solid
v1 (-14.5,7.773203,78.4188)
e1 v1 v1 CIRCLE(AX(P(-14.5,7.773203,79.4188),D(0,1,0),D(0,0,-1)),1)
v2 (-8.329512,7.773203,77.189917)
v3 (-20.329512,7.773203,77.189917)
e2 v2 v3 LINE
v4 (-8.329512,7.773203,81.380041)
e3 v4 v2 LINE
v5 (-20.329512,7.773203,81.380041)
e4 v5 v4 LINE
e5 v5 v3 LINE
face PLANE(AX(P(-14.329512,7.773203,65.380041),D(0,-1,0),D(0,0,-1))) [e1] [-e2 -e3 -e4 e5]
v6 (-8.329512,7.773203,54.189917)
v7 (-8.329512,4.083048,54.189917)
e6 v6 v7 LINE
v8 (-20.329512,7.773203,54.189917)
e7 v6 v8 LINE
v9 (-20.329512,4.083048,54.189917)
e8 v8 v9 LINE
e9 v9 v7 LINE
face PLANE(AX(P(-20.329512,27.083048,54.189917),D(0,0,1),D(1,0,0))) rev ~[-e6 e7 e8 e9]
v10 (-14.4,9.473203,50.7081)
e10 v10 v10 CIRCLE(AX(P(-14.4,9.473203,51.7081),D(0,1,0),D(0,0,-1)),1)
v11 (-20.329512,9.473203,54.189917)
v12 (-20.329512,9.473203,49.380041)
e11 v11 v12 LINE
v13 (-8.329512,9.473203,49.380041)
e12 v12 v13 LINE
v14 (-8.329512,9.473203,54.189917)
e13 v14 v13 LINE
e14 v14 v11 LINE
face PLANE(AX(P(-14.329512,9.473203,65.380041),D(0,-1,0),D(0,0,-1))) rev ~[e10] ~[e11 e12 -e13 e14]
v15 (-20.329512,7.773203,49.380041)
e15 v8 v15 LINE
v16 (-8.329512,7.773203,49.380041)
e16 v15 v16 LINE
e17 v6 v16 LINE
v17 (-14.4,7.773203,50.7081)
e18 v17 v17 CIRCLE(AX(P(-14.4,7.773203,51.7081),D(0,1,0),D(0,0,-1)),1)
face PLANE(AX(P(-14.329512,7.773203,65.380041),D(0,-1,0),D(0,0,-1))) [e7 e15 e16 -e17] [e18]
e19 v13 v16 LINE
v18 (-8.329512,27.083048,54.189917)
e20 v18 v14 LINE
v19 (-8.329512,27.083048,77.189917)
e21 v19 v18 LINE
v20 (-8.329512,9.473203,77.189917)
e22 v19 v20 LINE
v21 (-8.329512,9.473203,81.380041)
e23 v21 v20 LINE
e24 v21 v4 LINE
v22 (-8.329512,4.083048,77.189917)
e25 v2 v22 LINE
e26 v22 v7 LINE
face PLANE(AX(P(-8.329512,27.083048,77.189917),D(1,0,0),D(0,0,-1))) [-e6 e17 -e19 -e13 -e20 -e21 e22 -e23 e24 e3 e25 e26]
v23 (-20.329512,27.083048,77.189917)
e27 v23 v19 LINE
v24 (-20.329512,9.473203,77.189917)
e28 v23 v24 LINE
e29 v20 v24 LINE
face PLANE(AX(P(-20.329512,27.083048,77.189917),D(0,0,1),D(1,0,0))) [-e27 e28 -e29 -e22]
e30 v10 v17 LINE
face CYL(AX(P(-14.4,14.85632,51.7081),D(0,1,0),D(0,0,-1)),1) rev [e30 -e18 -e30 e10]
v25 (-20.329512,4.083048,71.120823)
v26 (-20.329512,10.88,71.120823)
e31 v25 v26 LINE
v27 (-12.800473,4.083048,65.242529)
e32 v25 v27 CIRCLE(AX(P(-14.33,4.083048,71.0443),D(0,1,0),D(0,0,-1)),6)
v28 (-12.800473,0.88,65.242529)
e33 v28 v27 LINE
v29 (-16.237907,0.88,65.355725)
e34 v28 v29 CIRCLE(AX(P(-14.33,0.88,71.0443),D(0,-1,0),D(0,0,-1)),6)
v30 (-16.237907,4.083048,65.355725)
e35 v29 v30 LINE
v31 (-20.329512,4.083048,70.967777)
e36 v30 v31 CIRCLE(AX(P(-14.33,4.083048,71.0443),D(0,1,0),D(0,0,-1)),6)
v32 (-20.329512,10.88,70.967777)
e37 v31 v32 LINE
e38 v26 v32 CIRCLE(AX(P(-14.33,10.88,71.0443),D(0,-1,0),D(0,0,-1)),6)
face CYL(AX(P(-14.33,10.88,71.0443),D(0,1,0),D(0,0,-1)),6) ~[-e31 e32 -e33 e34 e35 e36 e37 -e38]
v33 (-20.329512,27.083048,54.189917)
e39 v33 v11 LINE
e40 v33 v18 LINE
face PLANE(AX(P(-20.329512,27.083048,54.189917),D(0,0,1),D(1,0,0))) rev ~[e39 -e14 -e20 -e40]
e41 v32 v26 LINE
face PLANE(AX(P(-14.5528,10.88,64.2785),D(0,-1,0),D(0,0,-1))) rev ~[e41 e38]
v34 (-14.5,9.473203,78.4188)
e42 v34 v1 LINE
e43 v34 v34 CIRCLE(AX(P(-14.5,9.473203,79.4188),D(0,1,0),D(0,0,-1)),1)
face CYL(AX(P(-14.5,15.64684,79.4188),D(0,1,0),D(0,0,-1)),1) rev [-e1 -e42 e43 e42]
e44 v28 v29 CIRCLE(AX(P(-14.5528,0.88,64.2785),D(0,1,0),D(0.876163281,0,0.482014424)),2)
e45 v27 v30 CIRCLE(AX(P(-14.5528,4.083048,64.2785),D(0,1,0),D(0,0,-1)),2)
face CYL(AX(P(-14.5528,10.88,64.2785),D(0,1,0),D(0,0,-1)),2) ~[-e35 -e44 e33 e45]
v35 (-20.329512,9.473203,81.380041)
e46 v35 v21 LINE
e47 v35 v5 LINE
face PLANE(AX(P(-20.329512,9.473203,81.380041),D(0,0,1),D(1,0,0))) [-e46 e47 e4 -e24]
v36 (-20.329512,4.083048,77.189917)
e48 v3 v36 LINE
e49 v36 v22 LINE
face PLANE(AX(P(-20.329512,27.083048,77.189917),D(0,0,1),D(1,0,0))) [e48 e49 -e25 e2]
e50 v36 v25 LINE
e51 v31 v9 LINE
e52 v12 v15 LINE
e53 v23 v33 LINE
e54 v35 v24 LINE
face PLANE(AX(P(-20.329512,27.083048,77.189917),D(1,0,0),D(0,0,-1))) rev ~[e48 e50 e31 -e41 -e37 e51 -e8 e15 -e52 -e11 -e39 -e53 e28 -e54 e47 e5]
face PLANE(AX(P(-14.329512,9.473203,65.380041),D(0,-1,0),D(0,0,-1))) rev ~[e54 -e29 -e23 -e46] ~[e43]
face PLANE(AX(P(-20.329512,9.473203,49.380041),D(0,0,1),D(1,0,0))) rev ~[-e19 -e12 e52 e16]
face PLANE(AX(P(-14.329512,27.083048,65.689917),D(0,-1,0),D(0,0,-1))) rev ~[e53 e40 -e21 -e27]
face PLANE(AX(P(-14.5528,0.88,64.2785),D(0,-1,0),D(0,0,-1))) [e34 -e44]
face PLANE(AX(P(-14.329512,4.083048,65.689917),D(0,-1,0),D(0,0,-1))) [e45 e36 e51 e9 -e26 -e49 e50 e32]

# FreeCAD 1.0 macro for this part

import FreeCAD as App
import Part
import Sketcher

doc = App.newDocument("Part")
body = doc.addObject("PartDesign::Body", "Body")

sketch1 = doc.addObject("Sketcher::SketchObject", "Sketch")
body.addObject(sketch1)
sketch1.AttachmentSupport = (doc.XY_Plane, [""])
sketch1.MapMode = "FlatFace"
sketch1.AttachmentOffset = App.Placement(App.Vector(0, 0, 6.56), App.Rotation())
sketch1.addGeometry(Part.Circle(App.Vector(34.4857, 34.67, 0), App.Vector(0, 0, 1), 6), False)
sketch1.addConstraint(Sketcher.Constraint("Diameter", 0, 12.0))
sketch1.addConstraint(Sketcher.Constraint("DistanceY", -1, 1, 0, 3, 34.67))
sketch1.addConstraint(Sketcher.Constraint("DistanceX", -1, 1, 0, 3, 34.4857))
pad1 = doc.addObject("PartDesign::Pad", "Pad")
body.addObject(pad1)
pad1.Profile = sketch1
pad1.Length = 10
body2 = doc.addObject("PartDesign::Body", "Body001")

sketch2 = doc.addObject("Sketcher::SketchObject", "Sketch001")
body2.addObject(sketch2)
sketch2.AttachmentSupport = (doc.getObject("XY_Plane001"), [""])
sketch2.MapMode = "FlatFace"
sketch2.AttachmentOffset = App.Placement(App.Vector(0, 0, 2.58368), App.Rotation())
sketch2.addGeometry(Part.Circle(App.Vector(53.8219, 34.6, 0), App.Vector(0, 0, 1), 1), False)
sketch2.addConstraint(Sketcher.Constraint("Diameter", 0, 2.0))
sketch2.addConstraint(Sketcher.Constraint("DistanceY", -1, 1, 0, 3, 34.6))
sketch2.addConstraint(Sketcher.Constraint("DistanceX", -1, 1, 0, 3, 53.8219))
pad2 = doc.addObject("PartDesign::Pad", "Pad001")
body2.addObject(pad2)
pad2.Profile = sketch2
pad2.Length = 10
body3 = doc.addObject("PartDesign::Body", "Body002")

sketch3 = doc.addObject("Sketcher::SketchObject", "Sketch002")
body3.addObject(sketch3)
sketch3.AttachmentSupport = (doc.getObject("XY_Plane002"), [""])
sketch3.MapMode = "FlatFace"
sketch3.AttachmentOffset = App.Placement(App.Vector(0, 0, 1.79316), App.Rotation())
sketch3.addGeometry(Part.Circle(App.Vector(26.1112, 34.5, 0), App.Vector(0, 0, 1), 1), False)
sketch3.addConstraint(Sketcher.Constraint("Diameter", 0, 2.0))
sketch3.addConstraint(Sketcher.Constraint("DistanceY", -1, 1, 0, 3, 34.5))
sketch3.addConstraint(Sketcher.Constraint("DistanceX", -1, 1, 0, 3, 26.1112))
pad3 = doc.addObject("PartDesign::Pad", "Pad002")
body3.addObject(pad3)
pad3.Profile = sketch3
pad3.Length = 10
body4 = doc.addObject("PartDesign::Body", "Body003")

sketch4 = doc.addObject("Sketcher::SketchObject", "Sketch003")
body4.addObject(sketch4)
sketch4.AttachmentSupport = (doc.getObject("XY_Plane003"), [""])
sketch4.MapMode = "FlatFace"
sketch4.AttachmentOffset = App.Placement(App.Vector(0, 0, -9.643048), App.Rotation())
sketch4.addGeometry(Part.LineSegment(App.Vector(28.340083, 40.670488, 0), App.Vector(28.340083, 28.670488, 0)), False)
sketch4.addGeometry(Part.LineSegment(App.Vector(28.340083, 28.670488, 0), App.Vector(51.340083, 28.670488, 0)), False)
sketch4.addGeometry(Part.LineSegment(App.Vector(51.340083, 28.670488, 0), App.Vector(51.340083, 40.670488, 0)), False)
sketch4.addGeometry(Part.LineSegment(App.Vector(51.340083, 40.670488, 0), App.Vector(28.340083, 40.670488, 0)), False)
sketch4.addConstraint(Sketcher.Constraint("Coincident", 0, 2, 1, 1))
sketch4.addConstraint(Sketcher.Constraint("Coincident", 1, 2, 2, 1))
sketch4.addConstraint(Sketcher.Constraint("Coincident", 2, 2, 3, 1))
sketch4.addConstraint(Sketcher.Constraint("Coincident", 3, 2, 0, 1))
sketch4.addConstraint(Sketcher.Constraint("Vertical", 0))
sketch4.addConstraint(Sketcher.Constraint("Horizontal", 1))
sketch4.addConstraint(Sketcher.Constraint("Vertical", 2))
sketch4.addConstraint(Sketcher.Constraint("Horizontal", 3))
sketch4.addConstraint(Sketcher.Constraint("DistanceX", 1, 1, 1, 2, 23.0))
sketch4.addConstraint(Sketcher.Constraint("DistanceY", 0, 2, 0, 1, 12.0))
sketch4.addConstraint(Sketcher.Constraint("DistanceX", -1, 1, 0, 2, 28.340083))
sketch4.addConstraint(Sketcher.Constraint("DistanceY", -1, 1, 0, 2, 28.670488))
pad4 = doc.addObject("PartDesign::Pad", "Pad003")
body4.addObject(pad4)
pad4.Profile = sketch4
pad4.Length = 23
body5 = doc.addObject("PartDesign::Body", "Body004")

sketch5 = doc.addObject("Sketcher::SketchObject", "Sketch004")
body5.addObject(sketch5)
sketch5.AttachmentSupport = (doc.getObject("XY_Plane004"), [""])
sketch5.MapMode = "FlatFace"
sketch5.AttachmentOffset = App.Placement(App.Vector(0, 0, 7.966797), App.Rotation())
sketch5.addGeometry(Part.LineSegment(App.Vector(24.149959, 40.670488, 0), App.Vector(24.149959, 28.670488, 0)), False)
sketch5.addGeometry(Part.LineSegment(App.Vector(24.149959, 28.670488, 0), App.Vector(56.149959, 28.670488, 0)), False)
sketch5.addGeometry(Part.LineSegment(App.Vector(56.149959, 28.670488, 0), App.Vector(56.149959, 40.670488, 0)), False)
sketch5.addGeometry(Part.LineSegment(App.Vector(56.149959, 40.670488, 0), App.Vector(24.149959, 40.670488, 0)), False)
sketch5.addConstraint(Sketcher.Constraint("Coincident", 0, 2, 1, 1))
sketch5.addConstraint(Sketcher.Constraint("Coincident", 1, 2, 2, 1))
sketch5.addConstraint(Sketcher.Constraint("Coincident", 2, 2, 3, 1))
sketch5.addConstraint(Sketcher.Constraint("Coincident", 3, 2, 0, 1))
sketch5.addConstraint(Sketcher.Constraint("Vertical", 0))
sketch5.addConstraint(Sketcher.Constraint("Horizontal", 1))
sketch5.addConstraint(Sketcher.Constraint("Vertical", 2))
sketch5.addConstraint(Sketcher.Constraint("Horizontal", 3))
sketch5.addConstraint(Sketcher.Constraint("DistanceX", 1, 1, 1, 2, 32.0))
sketch5.addConstraint(Sketcher.Constraint("DistanceY", 0, 2, 0, 1, 12.0))
sketch5.addConstraint(Sketcher.Constraint("DistanceX", -1, 1, 0, 2, 24.149959))
sketch5.addConstraint(Sketcher.Constraint("DistanceY", -1, 1, 0, 2, 28.670488))
pad5 = doc.addObject("PartDesign::Pad", "Pad004")
body5.addObject(pad5)
pad5.Profile = sketch5
pad5.Length = 1.7
doc.recompute()

boolean = doc.addObject("PartDesign::Boolean", "Boolean")
body5.addObject(boolean)
boolean.Type = "Fuse"
boolean.addObjects([body4])
doc.recompute()

boolean2 = doc.addObject("PartDesign::Boolean", "Boolean001")
body5.addObject(boolean2)
boolean2.Type = "Cut"
boolean2.addObjects([body3])
doc.recompute()

boolean3 = doc.addObject("PartDesign::Boolean", "Boolean002")
body5.addObject(boolean3)
boolean3.Type = "Cut"
boolean3.addObjects([body2])
body6 = doc.addObject("PartDesign::Body", "Body005")

sketch6 = doc.addObject("Sketcher::SketchObject", "Sketch005")
body6.addObject(sketch6)
sketch6.AttachmentSupport = (doc.getObject("XY_Plane005"), [""])
sketch6.MapMode = "FlatFace"
sketch6.AttachmentOffset = App.Placement(App.Vector(0, 0, 6.56), App.Rotation())
sketch6.addGeometry(Part.Circle(App.Vector(41.2515, 34.4472, 0), App.Vector(0, 0, 1), 2), False)
sketch6.addConstraint(Sketcher.Constraint("Diameter", 0, 4.0))
sketch6.addConstraint(Sketcher.Constraint("DistanceX", -1, 1, 0, 3, 41.2515))
sketch6.addConstraint(Sketcher.Constraint("DistanceY", -1, 1, 0, 3, 34.4472))
pad6 = doc.addObject("PartDesign::Pad", "Pad005")
body6.addObject(pad6)
pad6.Profile = sketch6
pad6.Length = 10
doc.recompute()

boolean4 = doc.addObject("PartDesign::Boolean", "Boolean003")
body6.addObject(boolean4)
boolean4.Type = "Fuse"
boolean4.addObjects([body])
doc.recompute()

boolean5 = doc.addObject("PartDesign::Boolean", "Boolean004")
body6.addObject(boolean5)
boolean5.Type = "Fuse"
boolean5.addObjects([body5])
body7 = doc.addObject("PartDesign::Body", "Body006")
doc.recompute()

body6.Placement = App.Placement(App.Vector(0, 0, 0), App.Rotation(App.Vector(0, 1, 0), 90))
boolean6 = doc.addObject("PartDesign::Boolean", "Boolean005")
body7.addObject(boolean6)
boolean6.Type = "Fuse"
boolean6.addObjects([body6])
body8 = doc.addObject("PartDesign::Body", "Body007")
doc.recompute()

body7.Placement = App.Placement(App.Vector(-49, 17.44, 105.53), App.Rotation(App.Vector(0, 0, 1), 270))
boolean7 = doc.addObject("PartDesign::Boolean", "Boolean006")
body8.addObject(boolean7)
boolean7.Type = "Fuse"
boolean7.addObjects([body7])

doc.recompute()
